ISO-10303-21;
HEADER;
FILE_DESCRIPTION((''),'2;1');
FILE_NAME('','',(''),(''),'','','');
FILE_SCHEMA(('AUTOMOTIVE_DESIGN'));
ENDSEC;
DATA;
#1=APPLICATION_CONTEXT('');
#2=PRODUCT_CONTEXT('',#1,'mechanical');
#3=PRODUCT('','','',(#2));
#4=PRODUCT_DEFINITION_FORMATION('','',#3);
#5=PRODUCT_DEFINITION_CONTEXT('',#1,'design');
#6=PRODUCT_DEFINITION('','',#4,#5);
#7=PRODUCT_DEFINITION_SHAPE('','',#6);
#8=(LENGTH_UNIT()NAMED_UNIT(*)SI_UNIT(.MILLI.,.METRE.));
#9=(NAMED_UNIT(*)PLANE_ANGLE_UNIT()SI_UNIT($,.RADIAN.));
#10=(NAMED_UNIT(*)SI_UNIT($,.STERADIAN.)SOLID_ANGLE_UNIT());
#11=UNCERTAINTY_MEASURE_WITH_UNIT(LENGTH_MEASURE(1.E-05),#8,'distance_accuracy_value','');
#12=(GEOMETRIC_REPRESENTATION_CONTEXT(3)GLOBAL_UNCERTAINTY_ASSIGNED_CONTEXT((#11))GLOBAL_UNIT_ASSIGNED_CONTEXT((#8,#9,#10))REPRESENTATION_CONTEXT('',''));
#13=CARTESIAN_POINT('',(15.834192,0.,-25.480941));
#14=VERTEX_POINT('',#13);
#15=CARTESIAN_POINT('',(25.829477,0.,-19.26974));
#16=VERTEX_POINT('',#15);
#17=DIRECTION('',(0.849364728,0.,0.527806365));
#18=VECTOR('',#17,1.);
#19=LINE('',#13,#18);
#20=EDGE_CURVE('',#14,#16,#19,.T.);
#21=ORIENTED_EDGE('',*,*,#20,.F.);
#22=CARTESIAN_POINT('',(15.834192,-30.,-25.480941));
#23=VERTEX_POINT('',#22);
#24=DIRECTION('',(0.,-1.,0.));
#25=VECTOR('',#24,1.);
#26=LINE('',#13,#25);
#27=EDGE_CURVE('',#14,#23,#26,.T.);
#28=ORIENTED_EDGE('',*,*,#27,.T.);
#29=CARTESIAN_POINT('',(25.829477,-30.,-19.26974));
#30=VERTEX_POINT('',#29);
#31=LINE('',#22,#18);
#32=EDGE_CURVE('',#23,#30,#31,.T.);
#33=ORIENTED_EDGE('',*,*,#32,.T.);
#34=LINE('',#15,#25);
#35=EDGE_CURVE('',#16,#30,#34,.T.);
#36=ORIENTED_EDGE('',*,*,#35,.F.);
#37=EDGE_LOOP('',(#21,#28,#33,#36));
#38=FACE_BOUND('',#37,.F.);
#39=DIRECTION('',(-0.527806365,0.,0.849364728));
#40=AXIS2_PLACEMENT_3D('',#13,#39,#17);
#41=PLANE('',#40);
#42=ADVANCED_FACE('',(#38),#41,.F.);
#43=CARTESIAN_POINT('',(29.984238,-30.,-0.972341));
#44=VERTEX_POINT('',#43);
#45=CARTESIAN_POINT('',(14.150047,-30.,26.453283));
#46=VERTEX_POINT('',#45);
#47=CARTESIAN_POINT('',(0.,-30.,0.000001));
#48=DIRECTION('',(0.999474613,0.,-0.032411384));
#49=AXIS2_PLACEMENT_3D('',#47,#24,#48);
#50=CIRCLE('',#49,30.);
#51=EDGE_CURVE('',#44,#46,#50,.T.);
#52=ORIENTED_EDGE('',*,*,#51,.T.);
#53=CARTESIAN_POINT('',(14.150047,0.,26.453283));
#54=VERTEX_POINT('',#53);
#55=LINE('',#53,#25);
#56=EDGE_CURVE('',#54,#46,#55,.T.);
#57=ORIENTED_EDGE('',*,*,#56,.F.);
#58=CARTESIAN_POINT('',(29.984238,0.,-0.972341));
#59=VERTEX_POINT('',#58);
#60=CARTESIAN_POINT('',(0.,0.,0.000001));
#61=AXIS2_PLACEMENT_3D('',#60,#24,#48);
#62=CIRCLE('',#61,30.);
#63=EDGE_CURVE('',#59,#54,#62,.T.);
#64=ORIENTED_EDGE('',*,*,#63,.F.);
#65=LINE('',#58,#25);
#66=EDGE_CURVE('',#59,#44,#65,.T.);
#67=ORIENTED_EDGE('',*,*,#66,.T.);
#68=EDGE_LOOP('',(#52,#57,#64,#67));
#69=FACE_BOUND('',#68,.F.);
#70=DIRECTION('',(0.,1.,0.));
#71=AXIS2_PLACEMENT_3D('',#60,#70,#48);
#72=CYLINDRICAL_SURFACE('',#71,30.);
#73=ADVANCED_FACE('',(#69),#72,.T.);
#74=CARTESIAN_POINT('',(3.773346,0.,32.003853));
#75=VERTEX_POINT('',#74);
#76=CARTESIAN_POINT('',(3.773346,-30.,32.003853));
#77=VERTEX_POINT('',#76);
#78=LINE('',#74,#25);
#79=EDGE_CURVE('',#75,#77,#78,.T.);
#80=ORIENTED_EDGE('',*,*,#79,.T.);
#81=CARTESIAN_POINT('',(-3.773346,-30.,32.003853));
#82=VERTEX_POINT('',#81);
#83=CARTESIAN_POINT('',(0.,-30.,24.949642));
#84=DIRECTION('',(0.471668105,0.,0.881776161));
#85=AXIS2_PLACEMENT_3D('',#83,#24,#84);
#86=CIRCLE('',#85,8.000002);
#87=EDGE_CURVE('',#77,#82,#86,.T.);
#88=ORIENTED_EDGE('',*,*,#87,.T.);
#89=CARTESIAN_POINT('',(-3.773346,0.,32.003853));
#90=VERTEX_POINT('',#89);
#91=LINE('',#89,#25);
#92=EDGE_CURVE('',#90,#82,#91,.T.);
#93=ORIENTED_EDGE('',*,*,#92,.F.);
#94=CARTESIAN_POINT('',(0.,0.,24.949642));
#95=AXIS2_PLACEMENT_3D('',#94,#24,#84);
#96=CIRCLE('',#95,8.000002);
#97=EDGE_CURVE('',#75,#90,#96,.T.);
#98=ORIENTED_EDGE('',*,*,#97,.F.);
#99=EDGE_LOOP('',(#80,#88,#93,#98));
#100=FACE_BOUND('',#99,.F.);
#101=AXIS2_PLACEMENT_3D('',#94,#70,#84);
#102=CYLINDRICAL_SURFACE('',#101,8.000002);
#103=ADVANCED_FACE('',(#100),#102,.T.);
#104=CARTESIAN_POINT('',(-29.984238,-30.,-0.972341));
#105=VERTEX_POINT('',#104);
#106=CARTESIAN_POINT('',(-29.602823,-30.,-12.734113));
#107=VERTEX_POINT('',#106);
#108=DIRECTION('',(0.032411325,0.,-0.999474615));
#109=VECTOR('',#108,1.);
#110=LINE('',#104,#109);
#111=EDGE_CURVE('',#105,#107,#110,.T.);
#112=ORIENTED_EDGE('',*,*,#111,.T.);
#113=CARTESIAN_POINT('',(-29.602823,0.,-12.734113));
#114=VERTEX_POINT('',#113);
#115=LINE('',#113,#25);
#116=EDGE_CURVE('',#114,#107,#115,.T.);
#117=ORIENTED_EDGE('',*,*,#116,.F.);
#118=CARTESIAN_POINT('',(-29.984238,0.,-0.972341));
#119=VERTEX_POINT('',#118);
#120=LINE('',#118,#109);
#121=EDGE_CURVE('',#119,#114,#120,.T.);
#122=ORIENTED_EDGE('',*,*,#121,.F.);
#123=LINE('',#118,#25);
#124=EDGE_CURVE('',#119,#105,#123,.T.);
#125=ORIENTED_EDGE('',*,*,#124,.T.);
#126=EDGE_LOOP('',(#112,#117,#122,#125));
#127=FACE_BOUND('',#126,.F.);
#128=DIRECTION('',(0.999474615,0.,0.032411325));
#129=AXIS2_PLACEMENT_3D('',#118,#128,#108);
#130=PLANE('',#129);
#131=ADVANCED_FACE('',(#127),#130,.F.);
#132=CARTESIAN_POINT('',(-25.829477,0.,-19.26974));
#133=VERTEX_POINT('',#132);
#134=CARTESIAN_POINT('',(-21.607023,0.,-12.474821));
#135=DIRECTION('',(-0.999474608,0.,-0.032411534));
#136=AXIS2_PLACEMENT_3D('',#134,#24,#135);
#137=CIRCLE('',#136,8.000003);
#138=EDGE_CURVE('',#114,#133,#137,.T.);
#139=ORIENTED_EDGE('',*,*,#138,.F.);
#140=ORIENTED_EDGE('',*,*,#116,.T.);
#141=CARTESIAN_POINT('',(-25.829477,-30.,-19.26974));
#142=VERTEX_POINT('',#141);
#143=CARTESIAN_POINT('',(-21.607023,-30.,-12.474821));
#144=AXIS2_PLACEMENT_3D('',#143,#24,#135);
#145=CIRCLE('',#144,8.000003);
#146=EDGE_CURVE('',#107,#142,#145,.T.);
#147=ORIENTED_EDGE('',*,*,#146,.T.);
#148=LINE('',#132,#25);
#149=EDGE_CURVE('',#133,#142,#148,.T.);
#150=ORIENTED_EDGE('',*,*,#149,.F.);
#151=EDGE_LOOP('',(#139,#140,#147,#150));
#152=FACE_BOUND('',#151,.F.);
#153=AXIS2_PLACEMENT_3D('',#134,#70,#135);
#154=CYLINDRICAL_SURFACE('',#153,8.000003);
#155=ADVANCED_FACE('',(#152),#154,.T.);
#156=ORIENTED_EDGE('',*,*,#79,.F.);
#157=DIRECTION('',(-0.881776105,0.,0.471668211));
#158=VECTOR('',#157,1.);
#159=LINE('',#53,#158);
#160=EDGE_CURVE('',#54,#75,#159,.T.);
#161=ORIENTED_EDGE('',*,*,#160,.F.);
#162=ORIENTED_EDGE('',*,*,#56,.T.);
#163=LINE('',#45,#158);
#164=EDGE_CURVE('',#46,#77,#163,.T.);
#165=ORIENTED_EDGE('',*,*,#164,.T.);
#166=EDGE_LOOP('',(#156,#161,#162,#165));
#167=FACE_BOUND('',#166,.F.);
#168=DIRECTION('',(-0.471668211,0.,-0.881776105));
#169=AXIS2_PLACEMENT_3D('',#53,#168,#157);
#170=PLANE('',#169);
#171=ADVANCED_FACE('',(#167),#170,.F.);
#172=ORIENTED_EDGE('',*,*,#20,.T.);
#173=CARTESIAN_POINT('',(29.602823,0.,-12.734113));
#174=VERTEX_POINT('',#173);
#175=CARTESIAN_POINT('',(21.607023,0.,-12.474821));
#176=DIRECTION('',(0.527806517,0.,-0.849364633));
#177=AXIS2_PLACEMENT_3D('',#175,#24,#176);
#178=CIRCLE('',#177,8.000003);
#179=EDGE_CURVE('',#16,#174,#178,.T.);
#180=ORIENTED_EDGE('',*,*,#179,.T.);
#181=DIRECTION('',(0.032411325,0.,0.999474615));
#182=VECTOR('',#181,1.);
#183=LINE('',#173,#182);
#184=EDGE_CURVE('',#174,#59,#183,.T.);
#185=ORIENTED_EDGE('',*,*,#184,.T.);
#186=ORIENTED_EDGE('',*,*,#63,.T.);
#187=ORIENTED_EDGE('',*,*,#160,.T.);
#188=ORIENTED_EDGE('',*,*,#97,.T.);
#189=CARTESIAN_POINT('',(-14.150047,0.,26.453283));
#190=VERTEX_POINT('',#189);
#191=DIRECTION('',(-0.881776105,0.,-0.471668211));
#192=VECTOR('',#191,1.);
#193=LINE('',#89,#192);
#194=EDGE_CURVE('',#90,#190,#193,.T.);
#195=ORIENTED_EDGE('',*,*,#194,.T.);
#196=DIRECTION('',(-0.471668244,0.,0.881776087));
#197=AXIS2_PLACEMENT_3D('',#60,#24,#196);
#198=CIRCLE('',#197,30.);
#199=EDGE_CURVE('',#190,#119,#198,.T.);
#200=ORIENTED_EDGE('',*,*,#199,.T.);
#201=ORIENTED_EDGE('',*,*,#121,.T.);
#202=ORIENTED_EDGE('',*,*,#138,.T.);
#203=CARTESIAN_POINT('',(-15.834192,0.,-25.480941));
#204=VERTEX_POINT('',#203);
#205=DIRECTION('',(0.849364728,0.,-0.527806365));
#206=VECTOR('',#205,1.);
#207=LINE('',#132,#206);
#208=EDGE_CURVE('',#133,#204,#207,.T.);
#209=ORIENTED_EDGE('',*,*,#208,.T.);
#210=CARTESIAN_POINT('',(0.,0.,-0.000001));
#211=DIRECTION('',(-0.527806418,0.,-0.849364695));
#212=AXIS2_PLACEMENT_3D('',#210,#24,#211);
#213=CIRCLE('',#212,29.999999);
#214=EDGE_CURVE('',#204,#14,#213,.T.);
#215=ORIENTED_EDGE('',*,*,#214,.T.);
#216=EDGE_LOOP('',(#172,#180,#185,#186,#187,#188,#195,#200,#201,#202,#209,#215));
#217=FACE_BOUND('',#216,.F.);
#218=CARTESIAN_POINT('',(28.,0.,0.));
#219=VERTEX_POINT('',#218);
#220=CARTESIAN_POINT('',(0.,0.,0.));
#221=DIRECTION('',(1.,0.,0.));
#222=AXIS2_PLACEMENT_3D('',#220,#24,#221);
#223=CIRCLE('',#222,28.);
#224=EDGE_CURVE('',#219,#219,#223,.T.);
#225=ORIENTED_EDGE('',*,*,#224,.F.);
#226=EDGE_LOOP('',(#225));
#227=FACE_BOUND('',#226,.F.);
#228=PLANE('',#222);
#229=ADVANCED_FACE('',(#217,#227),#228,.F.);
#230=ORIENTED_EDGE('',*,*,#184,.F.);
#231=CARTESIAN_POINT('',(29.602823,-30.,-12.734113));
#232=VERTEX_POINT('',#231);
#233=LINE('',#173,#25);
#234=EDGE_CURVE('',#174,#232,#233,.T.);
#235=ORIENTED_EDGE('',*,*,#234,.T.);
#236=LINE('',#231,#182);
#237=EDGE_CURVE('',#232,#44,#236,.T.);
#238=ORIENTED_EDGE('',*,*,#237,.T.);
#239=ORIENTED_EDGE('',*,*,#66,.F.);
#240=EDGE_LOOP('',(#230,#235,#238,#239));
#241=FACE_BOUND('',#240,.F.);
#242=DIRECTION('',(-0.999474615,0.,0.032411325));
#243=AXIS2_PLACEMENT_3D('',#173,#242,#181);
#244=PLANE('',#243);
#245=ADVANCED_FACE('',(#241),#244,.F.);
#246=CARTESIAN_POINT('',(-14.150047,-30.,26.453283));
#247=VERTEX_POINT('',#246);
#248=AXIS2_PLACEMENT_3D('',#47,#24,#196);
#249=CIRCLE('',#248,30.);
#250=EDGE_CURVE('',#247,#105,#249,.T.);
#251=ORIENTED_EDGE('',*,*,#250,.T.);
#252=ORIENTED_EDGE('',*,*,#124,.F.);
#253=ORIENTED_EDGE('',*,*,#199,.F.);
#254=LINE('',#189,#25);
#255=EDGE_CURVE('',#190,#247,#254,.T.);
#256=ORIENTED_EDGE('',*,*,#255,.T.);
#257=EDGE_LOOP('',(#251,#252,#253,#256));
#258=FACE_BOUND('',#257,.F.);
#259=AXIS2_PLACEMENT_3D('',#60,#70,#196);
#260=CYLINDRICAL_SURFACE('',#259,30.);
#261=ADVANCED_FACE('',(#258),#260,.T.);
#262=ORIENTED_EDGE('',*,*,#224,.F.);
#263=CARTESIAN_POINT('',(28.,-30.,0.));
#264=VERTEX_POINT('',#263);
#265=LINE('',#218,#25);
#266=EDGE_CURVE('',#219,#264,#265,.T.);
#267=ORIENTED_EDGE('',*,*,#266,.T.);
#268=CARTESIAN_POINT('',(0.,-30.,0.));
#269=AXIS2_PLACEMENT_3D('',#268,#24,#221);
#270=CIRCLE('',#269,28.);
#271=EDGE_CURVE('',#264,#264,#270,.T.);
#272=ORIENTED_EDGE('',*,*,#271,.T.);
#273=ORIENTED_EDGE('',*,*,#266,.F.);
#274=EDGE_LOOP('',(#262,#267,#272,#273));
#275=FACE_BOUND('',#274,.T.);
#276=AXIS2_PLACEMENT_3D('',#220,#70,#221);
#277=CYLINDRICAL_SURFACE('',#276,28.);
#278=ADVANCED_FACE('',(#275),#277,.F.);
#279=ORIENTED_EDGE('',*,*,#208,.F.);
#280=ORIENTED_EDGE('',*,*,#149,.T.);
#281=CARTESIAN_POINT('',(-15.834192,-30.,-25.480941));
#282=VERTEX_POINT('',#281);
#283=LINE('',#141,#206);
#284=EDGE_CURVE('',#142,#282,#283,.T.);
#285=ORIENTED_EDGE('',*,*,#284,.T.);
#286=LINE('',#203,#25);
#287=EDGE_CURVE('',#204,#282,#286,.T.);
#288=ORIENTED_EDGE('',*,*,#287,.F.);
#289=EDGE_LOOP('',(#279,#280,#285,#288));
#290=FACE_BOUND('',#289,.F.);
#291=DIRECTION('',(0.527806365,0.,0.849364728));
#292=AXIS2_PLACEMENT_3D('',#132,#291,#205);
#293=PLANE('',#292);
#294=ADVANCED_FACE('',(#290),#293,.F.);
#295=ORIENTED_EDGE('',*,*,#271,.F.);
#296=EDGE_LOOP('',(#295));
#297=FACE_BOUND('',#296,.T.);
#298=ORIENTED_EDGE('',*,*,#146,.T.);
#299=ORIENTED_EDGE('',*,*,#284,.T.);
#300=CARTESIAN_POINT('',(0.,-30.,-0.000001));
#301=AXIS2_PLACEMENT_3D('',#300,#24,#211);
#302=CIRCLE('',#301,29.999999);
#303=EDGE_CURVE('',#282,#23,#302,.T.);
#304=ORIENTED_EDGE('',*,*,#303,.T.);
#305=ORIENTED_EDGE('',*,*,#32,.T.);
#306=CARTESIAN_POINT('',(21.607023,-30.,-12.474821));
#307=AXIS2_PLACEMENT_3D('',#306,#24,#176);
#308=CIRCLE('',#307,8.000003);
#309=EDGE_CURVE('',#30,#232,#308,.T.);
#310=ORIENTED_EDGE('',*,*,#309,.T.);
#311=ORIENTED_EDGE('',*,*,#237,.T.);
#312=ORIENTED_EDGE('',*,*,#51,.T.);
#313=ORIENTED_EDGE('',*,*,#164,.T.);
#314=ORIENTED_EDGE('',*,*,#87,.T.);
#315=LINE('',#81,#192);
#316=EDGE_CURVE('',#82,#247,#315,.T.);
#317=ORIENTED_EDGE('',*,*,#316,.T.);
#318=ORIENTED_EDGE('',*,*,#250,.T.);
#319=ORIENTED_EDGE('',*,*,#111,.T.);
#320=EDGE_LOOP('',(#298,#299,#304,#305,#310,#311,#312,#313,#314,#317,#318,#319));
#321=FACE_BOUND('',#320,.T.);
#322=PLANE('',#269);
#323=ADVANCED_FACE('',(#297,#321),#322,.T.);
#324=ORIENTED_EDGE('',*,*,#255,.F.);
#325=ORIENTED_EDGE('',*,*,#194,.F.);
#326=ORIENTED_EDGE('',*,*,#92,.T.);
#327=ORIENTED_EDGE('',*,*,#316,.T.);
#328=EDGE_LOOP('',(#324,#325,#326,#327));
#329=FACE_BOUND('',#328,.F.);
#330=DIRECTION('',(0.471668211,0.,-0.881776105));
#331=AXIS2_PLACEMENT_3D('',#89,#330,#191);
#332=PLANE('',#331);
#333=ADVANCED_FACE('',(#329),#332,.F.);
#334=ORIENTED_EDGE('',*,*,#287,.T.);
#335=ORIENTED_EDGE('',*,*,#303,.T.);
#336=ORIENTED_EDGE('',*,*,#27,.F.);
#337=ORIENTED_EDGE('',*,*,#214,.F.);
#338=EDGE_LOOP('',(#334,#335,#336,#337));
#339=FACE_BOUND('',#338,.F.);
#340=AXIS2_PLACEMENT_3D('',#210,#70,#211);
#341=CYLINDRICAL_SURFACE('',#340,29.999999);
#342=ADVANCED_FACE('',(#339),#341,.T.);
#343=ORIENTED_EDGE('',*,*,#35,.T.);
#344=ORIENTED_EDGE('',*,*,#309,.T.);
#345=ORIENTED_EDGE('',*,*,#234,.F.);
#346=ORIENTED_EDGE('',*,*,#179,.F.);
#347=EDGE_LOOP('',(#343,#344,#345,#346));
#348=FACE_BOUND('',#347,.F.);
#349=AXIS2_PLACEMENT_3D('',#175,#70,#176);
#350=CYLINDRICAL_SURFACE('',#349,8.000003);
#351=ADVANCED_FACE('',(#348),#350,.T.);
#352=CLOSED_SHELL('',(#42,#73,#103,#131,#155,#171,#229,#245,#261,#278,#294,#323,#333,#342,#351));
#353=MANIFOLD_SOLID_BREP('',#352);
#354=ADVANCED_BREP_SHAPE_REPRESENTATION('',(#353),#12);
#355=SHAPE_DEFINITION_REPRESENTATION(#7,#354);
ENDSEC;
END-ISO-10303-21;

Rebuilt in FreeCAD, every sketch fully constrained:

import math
import FreeCAD as App
import Part
import Sketcher
from FreeCAD import Vector

doc = App.newDocument("Part")
params = doc.addObject("Spreadsheet::Sheet", "Params")
for row, (alias, value) in enumerate([
    ("sketch1_diameter", "56 mm"),
    ("sketch1_radius", "30 mm"),
    ("pad1_length", "30 mm"),
], start=1):
    params.set(f"A{row}", alias)
    params.set(f"B{row}", "=" + value)
    params.setAlias(f"B{row}", alias)

body = doc.addObject("PartDesign::Body", "Body")

# Sketch on XZ plane
sketch1 = body.newObject("Sketcher::SketchObject", "Sketch")
sketch1.AttachmentSupport = (doc.getObject("XZ_Plane"), [""])
sketch1.MapMode = "FlatFace"
sketch1.addGeometry([
    Part.LineSegment(Vector(-3.773346, 32.003853, 0), Vector(-14.150047, 26.453283, 0)),  # 0
    Part.ArcOfCircle(Part.Circle(Vector(0, 0.000001, 0), Vector(0, 0, 1), 30), math.radians(118.14264), math.radians(181.857361)),  # 1
    Part.LineSegment(Vector(-29.984238, -0.972341, 0), Vector(-29.602823, -12.734113, 0)),  # 2
    Part.ArcOfCircle(Part.Circle(Vector(-21.607023, -12.474821, 0), Vector(0, 0, 1), 8.000003), math.radians(-178.142631), math.radians(-121.857369)),  # 3
    Part.LineSegment(Vector(-25.829477, -19.26974, 0), Vector(-15.834192, -25.480941, 0)),  # 4
    Part.ArcOfCircle(Part.Circle(Vector(0, -0.000001, 0), Vector(0, 0, 1), 29.999999), math.radians(-121.857363), math.radians(-58.142637)),  # 5
    Part.LineSegment(Vector(15.834192, -25.480941, 0), Vector(25.829477, -19.26974, 0)),  # 6
    Part.ArcOfCircle(Part.Circle(Vector(21.607023, -12.474821, 0), Vector(0, 0, 1), 8.000003), math.radians(-58.142631), math.radians(-1.857369)),  # 7
    Part.LineSegment(Vector(29.602823, -12.734113, 0), Vector(29.984238, -0.972341, 0)),  # 8
    Part.ArcOfCircle(Part.Circle(Vector(0, 0.000001, 0), Vector(0, 0, 1), 30), math.radians(-1.857361), math.radians(61.85736)),  # 9
    Part.LineSegment(Vector(14.150047, 26.453283, 0), Vector(3.773346, 32.003853, 0)),  # 10
    Part.ArcOfCircle(Part.Circle(Vector(0, 24.949642, 0), Vector(0, 0, 1), 8.000002), math.radians(61.857369), math.radians(118.142631)),  # 11
    Part.Circle(Vector(0, 0, 0), Vector(0, 0, 1), 28),  # 12
], False)
sketch1.addConstraint([
    Sketcher.Constraint("Tangent", 0, 2, 1, 1),
    Sketcher.Constraint("Tangent", 1, 2, 2, 1),
    Sketcher.Constraint("Tangent", 2, 2, 3, 1),
    Sketcher.Constraint("Tangent", 3, 2, 4, 1),
    Sketcher.Constraint("Tangent", 4, 2, 5, 1),
    Sketcher.Constraint("Tangent", 5, 2, 6, 1),
    Sketcher.Constraint("Tangent", 6, 2, 7, 1),
    Sketcher.Constraint("Tangent", 7, 2, 8, 1),
    Sketcher.Constraint("Tangent", 8, 2, 9, 1),
    Sketcher.Constraint("Tangent", 9, 2, 10, 1),
    Sketcher.Constraint("Tangent", 10, 2, 11, 1),
    Sketcher.Constraint("Tangent", 11, 2, 0, 1),
    Sketcher.Constraint("Coincident", 1, 3, -1, 1),
    Sketcher.Constraint("Coincident", 5, 3, -1, 1),
    Sketcher.Constraint("Coincident", 9, 3, -1, 1),
    Sketcher.Constraint("Coincident", 12, 3, -1, 1),
    Sketcher.Constraint("Equal", 1, 5),
    Sketcher.Constraint("Equal", 3, 7),
    Sketcher.Constraint("Equal", 5, 9),
    Sketcher.Constraint("Equal", 7, 11),
    Sketcher.Constraint("Symmetric", 3, 3, 7, 3, -2),
    Sketcher.Constraint("PointOnObject", 11, 3, -2),
    Sketcher.Constraint("Equal", 0, 2),
    Sketcher.Constraint("Diameter", 12, 56.0),
    Sketcher.Constraint("Radius", 1, 30.0),
    Sketcher.Constraint("Radius", 3, 8.000003),
    Sketcher.Constraint("DistanceX", 2, 2, 3, 3, 7.9958),
    Sketcher.Constraint("DistanceY", 3, 2, 1, 2, 18.297399),
])
sketch1.setExpression("Constraints[23]", "Params.sketch1_diameter")
sketch1.setExpression("Constraints[24]", "Params.sketch1_radius")
pad1 = body.newObject("PartDesign::Pad", "Pad")
pad1.Profile = sketch1
pad1.setExpression("Length", "Params.pad1_length")

doc.recompute()
